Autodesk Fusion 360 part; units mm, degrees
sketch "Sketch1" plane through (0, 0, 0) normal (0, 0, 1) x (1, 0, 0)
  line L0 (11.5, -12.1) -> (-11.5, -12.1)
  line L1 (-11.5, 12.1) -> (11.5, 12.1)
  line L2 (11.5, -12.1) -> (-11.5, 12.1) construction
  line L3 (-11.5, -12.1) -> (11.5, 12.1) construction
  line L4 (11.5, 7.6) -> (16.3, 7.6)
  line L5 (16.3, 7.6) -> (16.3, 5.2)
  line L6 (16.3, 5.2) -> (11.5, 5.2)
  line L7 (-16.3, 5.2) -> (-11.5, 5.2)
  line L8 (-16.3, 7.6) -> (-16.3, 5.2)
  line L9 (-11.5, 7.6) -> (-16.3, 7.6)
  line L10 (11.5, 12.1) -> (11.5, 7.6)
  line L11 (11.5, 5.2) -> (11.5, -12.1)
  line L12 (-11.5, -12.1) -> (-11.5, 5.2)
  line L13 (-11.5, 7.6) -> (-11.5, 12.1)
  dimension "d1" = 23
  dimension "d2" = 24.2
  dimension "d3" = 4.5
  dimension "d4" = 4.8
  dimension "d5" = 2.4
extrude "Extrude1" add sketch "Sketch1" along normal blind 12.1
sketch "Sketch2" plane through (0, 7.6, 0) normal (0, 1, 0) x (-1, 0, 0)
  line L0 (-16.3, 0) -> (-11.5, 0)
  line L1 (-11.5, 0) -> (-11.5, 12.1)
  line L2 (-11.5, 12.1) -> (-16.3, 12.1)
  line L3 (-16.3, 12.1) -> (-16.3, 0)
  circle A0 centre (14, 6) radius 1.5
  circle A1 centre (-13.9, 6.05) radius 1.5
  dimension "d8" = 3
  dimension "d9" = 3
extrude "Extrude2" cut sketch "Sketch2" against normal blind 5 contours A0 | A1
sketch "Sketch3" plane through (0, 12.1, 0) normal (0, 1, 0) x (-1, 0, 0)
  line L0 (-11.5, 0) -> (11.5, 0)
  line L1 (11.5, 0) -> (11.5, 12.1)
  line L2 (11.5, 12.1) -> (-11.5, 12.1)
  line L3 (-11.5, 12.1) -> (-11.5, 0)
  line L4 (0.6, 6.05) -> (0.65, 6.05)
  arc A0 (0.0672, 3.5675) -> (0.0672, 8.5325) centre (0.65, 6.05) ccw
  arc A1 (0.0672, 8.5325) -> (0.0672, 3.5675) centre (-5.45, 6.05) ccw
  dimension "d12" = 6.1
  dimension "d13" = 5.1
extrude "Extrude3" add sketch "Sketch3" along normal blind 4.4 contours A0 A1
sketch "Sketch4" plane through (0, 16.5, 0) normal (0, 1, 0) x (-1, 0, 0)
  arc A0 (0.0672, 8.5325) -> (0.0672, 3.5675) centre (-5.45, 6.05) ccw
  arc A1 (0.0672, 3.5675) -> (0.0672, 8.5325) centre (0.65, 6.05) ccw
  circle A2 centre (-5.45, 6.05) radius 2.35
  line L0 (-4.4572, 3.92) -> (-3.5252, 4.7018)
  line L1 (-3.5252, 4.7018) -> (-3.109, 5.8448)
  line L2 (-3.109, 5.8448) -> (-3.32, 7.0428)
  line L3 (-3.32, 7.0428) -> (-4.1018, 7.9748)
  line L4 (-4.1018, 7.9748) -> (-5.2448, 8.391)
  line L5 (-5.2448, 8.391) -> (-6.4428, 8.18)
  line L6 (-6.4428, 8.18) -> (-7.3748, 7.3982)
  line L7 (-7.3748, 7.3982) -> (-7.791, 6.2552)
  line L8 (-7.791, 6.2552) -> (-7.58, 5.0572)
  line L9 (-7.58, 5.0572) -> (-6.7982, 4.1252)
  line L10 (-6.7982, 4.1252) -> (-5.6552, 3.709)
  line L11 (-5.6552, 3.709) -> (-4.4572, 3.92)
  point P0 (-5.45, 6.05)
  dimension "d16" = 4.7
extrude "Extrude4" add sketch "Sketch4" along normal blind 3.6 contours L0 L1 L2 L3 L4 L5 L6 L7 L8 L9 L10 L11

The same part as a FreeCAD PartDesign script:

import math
import FreeCAD as App
import Part
import Sketcher

V = App.Vector
Q = App.Units.Quantity

doc = App.newDocument("Part")
body = doc.addObject("PartDesign::Body", "Body")

# Sketch on XY plane
sketch1 = doc.addObject("Sketcher::SketchObject", "Sketch")
body.addObject(sketch1)
sketch1.AttachmentSupport = (doc.XY_Plane, [""])
sketch1.MapMode = "FlatFace"
sketch1.addGeometry(Part.LineSegment(V(-11.5, -12.1, 0), V(11.5, -12.1, 0)), False)
sketch1.addGeometry(Part.LineSegment(V(11.5, -12.1, 0), V(11.5, 5.2, 0)), False)
sketch1.addGeometry(Part.LineSegment(V(11.5, 5.2, 0), V(16.3, 5.2, 0)), False)
sketch1.addGeometry(Part.LineSegment(V(16.3, 5.2, 0), V(16.3, 7.6, 0)), False)
sketch1.addGeometry(Part.LineSegment(V(16.3, 7.6, 0), V(11.5, 7.6, 0)), False)
sketch1.addGeometry(Part.LineSegment(V(11.5, 7.6, 0), V(11.5, 12.1, 0)), False)
sketch1.addGeometry(Part.LineSegment(V(11.5, 12.1, 0), V(-11.5, 12.1, 0)), False)
sketch1.addGeometry(Part.LineSegment(V(-11.5, 12.1, 0), V(-11.5, 7.6, 0)), False)
sketch1.addGeometry(Part.LineSegment(V(-11.5, 7.6, 0), V(-16.3, 7.6, 0)), False)
sketch1.addGeometry(Part.LineSegment(V(-16.3, 7.6, 0), V(-16.3, 5.2, 0)), False)
sketch1.addGeometry(Part.LineSegment(V(-16.3, 5.2, 0), V(-11.5, 5.2, 0)), False)
sketch1.addGeometry(Part.LineSegment(V(-11.5, 5.2, 0), V(-11.5, -12.1, 0)), False)
sketch1.addConstraint(Sketcher.Constraint("Coincident", 0, 2, 1, 1))
sketch1.addConstraint(Sketcher.Constraint("Coincident", 1, 2, 2, 1))
sketch1.addConstraint(Sketcher.Constraint("Coincident", 2, 2, 3, 1))
sketch1.addConstraint(Sketcher.Constraint("Coincident", 3, 2, 4, 1))
sketch1.addConstraint(Sketcher.Constraint("Coincident", 4, 2, 5, 1))
sketch1.addConstraint(Sketcher.Constraint("Coincident", 5, 2, 6, 1))
sketch1.addConstraint(Sketcher.Constraint("Coincident", 6, 2, 7, 1))
sketch1.addConstraint(Sketcher.Constraint("Coincident", 7, 2, 8, 1))
sketch1.addConstraint(Sketcher.Constraint("Coincident", 8, 2, 9, 1))
sketch1.addConstraint(Sketcher.Constraint("Coincident", 9, 2, 10, 1))
sketch1.addConstraint(Sketcher.Constraint("Coincident", 10, 2, 11, 1))
sketch1.addConstraint(Sketcher.Constraint("Coincident", 11, 2, 0, 1))
sketch1.addConstraint(Sketcher.Constraint("Horizontal", 0))
sketch1.addConstraint(Sketcher.Constraint("Vertical", 1))
sketch1.addConstraint(Sketcher.Constraint("Horizontal", 2))
sketch1.addConstraint(Sketcher.Constraint("Vertical", 3))
sketch1.addConstraint(Sketcher.Constraint("Horizontal", 4))
sketch1.addConstraint(Sketcher.Constraint("Vertical", 5))
sketch1.addConstraint(Sketcher.Constraint("Horizontal", 6))
sketch1.addConstraint(Sketcher.Constraint("Vertical", 7))
sketch1.addConstraint(Sketcher.Constraint("Horizontal", 8))
sketch1.addConstraint(Sketcher.Constraint("Vertical", 9))
sketch1.addConstraint(Sketcher.Constraint("Horizontal", 10))
sketch1.addConstraint(Sketcher.Constraint("Vertical", 11))
sketch1.addConstraint(Sketcher.Constraint("Symmetric", 0, 2, 6, 2, -1, 1))
sketch1.addConstraint(Sketcher.Constraint("Symmetric", 4, 2, 7, 2, -2))
sketch1.addConstraint(Sketcher.Constraint("Symmetric", 2, 2, 9, 2, -2))
sketch1.addConstraint(Sketcher.Constraint("Vertical", 7, 2, 10, 2))
sketch1.addConstraint(Sketcher.Constraint("DistanceX", 0, 1, 0, 2, Q("23 mm")))
sketch1.addConstraint(Sketcher.Constraint("DistanceX", 2, 1, 2, 2, Q("4.8 mm")))
sketch1.addConstraint(Sketcher.Constraint("DistanceY", 3, 1, 3, 2, Q("2.4 mm")))
sketch1.addConstraint(Sketcher.Constraint("DistanceY", 5, 1, 5, 2, Q("4.5 mm")))
sketch1.addConstraint(Sketcher.Constraint("DistanceY", 0, 2, 5, 2, Q("24.2 mm")))
pad1 = doc.addObject("PartDesign::Pad", "Pad")
body.addObject(pad1)
pad1.Profile = sketch1
pad1.Length = 12.1

# Sketch on XZ plane
sketch2 = doc.addObject("Sketcher::SketchObject", "Sketch001")
body.addObject(sketch2)
sketch2.AttachmentSupport = (doc.XZ_Plane, [""])
sketch2.MapMode = "FlatFace"
sketch2.AttachmentOffset = App.Placement(V(0, 0, -7.6), App.Rotation())
sketch2.addGeometry(Part.Circle(V(-14, 6, 0), V(0, 0, 1), 1.5), False)
sketch2.addGeometry(Part.Circle(V(13.9, 6, 0), V(0, 0, 1), 1.5), False)
sketch2.addConstraint(Sketcher.Constraint("Equal", 0, 1))
sketch2.addConstraint(Sketcher.Constraint("Diameter", 0, Q("3 mm")))
sketch2.addConstraint(Sketcher.Constraint("DistanceX", 0, 3, -1, 1, Q("14 mm")))
sketch2.addConstraint(Sketcher.Constraint("DistanceY", -1, 1, 0, 3, Q("6 mm")))
sketch2.addConstraint(Sketcher.Constraint("DistanceX", -1, 1, 1, 3, Q("13.9 mm")))
sketch2.addConstraint(Sketcher.Constraint("DistanceY", -1, 1, 1, 3, Q("6.05 mm")))
pocket1 = doc.addObject("PartDesign::Pocket", "Pocket")
body.addObject(pocket1)
pocket1.Profile = sketch2
pocket1.Length = 5
pocket1.Reversed = True

# Sketch on XZ plane
sketch3 = doc.addObject("Sketcher::SketchObject", "Sketch002")
body.addObject(sketch3)
sketch3.AttachmentSupport = (doc.XZ_Plane, [""])
sketch3.MapMode = "FlatFace"
sketch3.AttachmentOffset = App.Placement(V(0, 0, -12.1), App.Rotation())
sketch3.addGeometry(Part.ArcOfCircle(Part.Circle(V(5.5, 6, 0), V(0, 0, 1), 6), math.radians(-156), math.radians(156)), False)
sketch3.addGeometry(Part.ArcOfCircle(Part.Circle(V(-0.7, 6, 0), V(0, 0, 1), 2.5), math.radians(77), math.radians(283)), False)
sketch3.addConstraint(Sketcher.Constraint("Coincident", 0, 1, 1, 2))
sketch3.addConstraint(Sketcher.Constraint("Coincident", 1, 1, 0, 2))
sketch3.addConstraint(Sketcher.Constraint("Horizontal", 0, 3, 1, 3))
sketch3.addConstraint(Sketcher.Constraint("Radius", 1, Q("2.55 mm")))
sketch3.addConstraint(Sketcher.Constraint("DistanceX", 1, 3, 0, 3, Q("6.1 mm")))
sketch3.addConstraint(Sketcher.Constraint("Radius", 0, Q("6.05 mm")))
sketch3.addConstraint(Sketcher.Constraint("DistanceX", -1, 1, 0, 3, Q("5.45 mm")))
sketch3.addConstraint(Sketcher.Constraint("DistanceY", -1, 1, 0, 3, Q("6.05 mm")))
pad2 = doc.addObject("PartDesign::Pad", "Pad001")
body.addObject(pad2)
pad2.Profile = sketch3
pad2.Length = 4.4
pad2.Reversed = True

# Sketch on XZ plane
sketch4 = doc.addObject("Sketcher::SketchObject", "Sketch003")
body.addObject(sketch4)
sketch4.AttachmentSupport = (doc.XZ_Plane, [""])
sketch4.MapMode = "FlatFace"
sketch4.AttachmentOffset = App.Placement(V(0, 0, -16.5), App.Rotation())
sketch4.addGeometry(Part.LineSegment(V(3.1, 5.8, 0), V(3.3, 7, 0)), False)
sketch4.addGeometry(Part.LineSegment(V(3.3, 7, 0), V(4.1, 8, 0)), False)
sketch4.addGeometry(Part.LineSegment(V(4.1, 8, 0), V(5.2, 8.4, 0)), False)
sketch4.addGeometry(Part.LineSegment(V(5.2, 8.4, 0), V(6.4, 8.2, 0)), False)
sketch4.addGeometry(Part.LineSegment(V(6.4, 8.2, 0), V(7.4, 7.4, 0)), False)
sketch4.addGeometry(Part.LineSegment(V(7.4, 7.4, 0), V(7.8, 6.3, 0)), False)
sketch4.addGeometry(Part.LineSegment(V(7.8, 6.3, 0), V(7.6, 5.1, 0)), False)
sketch4.addGeometry(Part.LineSegment(V(7.6, 5.1, 0), V(6.8, 4.1, 0)), False)
sketch4.addGeometry(Part.LineSegment(V(6.8, 4.1, 0), V(5.7, 3.7, 0)), False)
sketch4.addGeometry(Part.LineSegment(V(5.7, 3.7, 0), V(4.5, 3.9, 0)), False)
sketch4.addGeometry(Part.LineSegment(V(4.5, 3.9, 0), V(3.5, 4.7, 0)), False)
sketch4.addGeometry(Part.LineSegment(V(3.5, 4.7, 0), V(3.1, 5.8, 0)), False)
sketch4.addConstraint(Sketcher.Constraint("Coincident", 0, 2, 1, 1))
sketch4.addConstraint(Sketcher.Constraint("Coincident", 1, 2, 2, 1))
sketch4.addConstraint(Sketcher.Constraint("Coincident", 2, 2, 3, 1))
sketch4.addConstraint(Sketcher.Constraint("Coincident", 3, 2, 4, 1))
sketch4.addConstraint(Sketcher.Constraint("Coincident", 4, 2, 5, 1))
sketch4.addConstraint(Sketcher.Constraint("Coincident", 5, 2, 6, 1))
sketch4.addConstraint(Sketcher.Constraint("Coincident", 6, 2, 7, 1))
sketch4.addConstraint(Sketcher.Constraint("Coincident", 7, 2, 8, 1))
sketch4.addConstraint(Sketcher.Constraint("Coincident", 8, 2, 9, 1))
sketch4.addConstraint(Sketcher.Constraint("Coincident", 9, 2, 10, 1))
sketch4.addConstraint(Sketcher.Constraint("Coincident", 10, 2, 11, 1))
sketch4.addConstraint(Sketcher.Constraint("Coincident", 11, 2, 0, 1))
sketch4.addConstraint(Sketcher.Constraint("Perpendicular", 0, 3))
sketch4.addConstraint(Sketcher.Constraint("Perpendicular", 1, 4))
sketch4.addConstraint(Sketcher.Constraint("Perpendicular", 2, 5))
sketch4.addConstraint(Sketcher.Constraint("Perpendicular", 3, 6))
sketch4.addConstraint(Sketcher.Constraint("Perpendicular", 4, 7))
sketch4.addConstraint(Sketcher.Constraint("Perpendicular", 5, 8))
sketch4.addConstraint(Sketcher.Constraint("Perpendicular", 6, 9))
sketch4.addConstraint(Sketcher.Constraint("Perpendicular", 7, 10))
sketch4.addConstraint(Sketcher.Constraint("Perpendicular", 8, 11))
sketch4.addConstraint(Sketcher.Constraint("Equal", 0, 1))
sketch4.addConstraint(Sketcher.Constraint("Equal", 1, 2))
sketch4.addConstraint(Sketcher.Constraint("Equal", 2, 3))
sketch4.addConstraint(Sketcher.Constraint("Equal", 3, 4))
sketch4.addConstraint(Sketcher.Constraint("Equal", 4, 5))
sketch4.addConstraint(Sketcher.Constraint("Equal", 5, 6))
sketch4.addConstraint(Sketcher.Constraint("Equal", 6, 7))
sketch4.addConstraint(Sketcher.Constraint("Equal", 7, 8))
sketch4.addConstraint(Sketcher.Constraint("Equal", 8, 9))
sketch4.addConstraint(Sketcher.Constraint("Angle", 0, Q("80.011 deg")))
sketch4.addConstraint(Sketcher.Constraint("DistanceX", -1, 1, 0, 2, Q("3.32 mm")))
sketch4.addConstraint(Sketcher.Constraint("DistanceY", -1, 1, 3, 2, Q("8.18 mm")))
sketch4.addConstraint(Sketcher.Constraint("DistanceX", -1, 1, 6, 2, Q("7.58 mm")))
sketch4.addConstraint(Sketcher.Constraint("DistanceX", 2, 2, 4, 2, Q("2.13 mm")))
sketch4.addConstraint(Sketcher.Constraint("DistanceY", -1, 1, 2, 2, Q("8.391 mm")))
pad3 = doc.addObject("PartDesign::Pad", "Pad002")
body.addObject(pad3)
pad3.Profile = sketch4
pad3.Length = 3.6
pad3.Reversed = True

doc.recompute()
